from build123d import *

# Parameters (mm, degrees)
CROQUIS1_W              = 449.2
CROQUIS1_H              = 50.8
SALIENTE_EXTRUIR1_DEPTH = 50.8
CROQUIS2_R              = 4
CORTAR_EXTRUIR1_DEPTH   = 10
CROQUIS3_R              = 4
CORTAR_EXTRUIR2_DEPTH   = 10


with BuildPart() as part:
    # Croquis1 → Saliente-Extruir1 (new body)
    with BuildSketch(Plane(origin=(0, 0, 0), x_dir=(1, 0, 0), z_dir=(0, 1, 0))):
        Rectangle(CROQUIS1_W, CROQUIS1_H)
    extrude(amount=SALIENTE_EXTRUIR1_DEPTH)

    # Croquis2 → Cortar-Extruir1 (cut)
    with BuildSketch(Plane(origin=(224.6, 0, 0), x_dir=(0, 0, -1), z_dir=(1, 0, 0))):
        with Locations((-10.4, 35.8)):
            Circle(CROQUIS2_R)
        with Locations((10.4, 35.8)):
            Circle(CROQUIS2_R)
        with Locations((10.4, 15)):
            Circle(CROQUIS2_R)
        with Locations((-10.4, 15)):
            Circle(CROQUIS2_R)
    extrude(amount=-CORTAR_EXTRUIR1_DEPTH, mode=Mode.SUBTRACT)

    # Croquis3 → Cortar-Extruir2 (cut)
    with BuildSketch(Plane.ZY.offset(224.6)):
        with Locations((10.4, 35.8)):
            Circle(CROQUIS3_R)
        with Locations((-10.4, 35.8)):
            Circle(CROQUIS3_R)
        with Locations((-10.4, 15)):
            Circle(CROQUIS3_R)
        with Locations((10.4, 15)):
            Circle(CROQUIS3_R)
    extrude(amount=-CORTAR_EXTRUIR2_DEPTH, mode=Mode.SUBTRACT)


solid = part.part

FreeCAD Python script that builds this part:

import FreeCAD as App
import Part
import Sketcher

V = App.Vector

doc = App.newDocument("Part")
body = doc.addObject("PartDesign::Body", "Body")

# Sketch on XZ plane
sketch1 = doc.addObject("Sketcher::SketchObject", "Sketch")
body.addObject(sketch1)
sketch1.AttachmentSupport = (doc.XZ_Plane, [""])
sketch1.MapMode = "FlatFace"
sketch1.addGeometry(Part.LineSegment(V(-224.6, -25.4, 0), V(-224.6, 25.4, 0)), False)
sketch1.addGeometry(Part.LineSegment(V(-224.6, 25.4, 0), V(224.6, 25.4, 0)), False)
sketch1.addGeometry(Part.LineSegment(V(224.6, 25.4, 0), V(224.6, -25.4, 0)), False)
sketch1.addGeometry(Part.LineSegment(V(224.6, -25.4, 0), V(-224.6, -25.4, 0)), False)
sketch1.addConstraint(Sketcher.Constraint("Coincident", 0, 2, 1, 1))
sketch1.addConstraint(Sketcher.Constraint("Coincident", 1, 2, 2, 1))
sketch1.addConstraint(Sketcher.Constraint("Coincident", 2, 2, 3, 1))
sketch1.addConstraint(Sketcher.Constraint("Coincident", 3, 2, 0, 1))
sketch1.addConstraint(Sketcher.Constraint("Vertical", 0))
sketch1.addConstraint(Sketcher.Constraint("Horizontal", 1))
sketch1.addConstraint(Sketcher.Constraint("Vertical", 2))
sketch1.addConstraint(Sketcher.Constraint("Horizontal", 3))
sketch1.addConstraint(Sketcher.Constraint("Symmetric", 0, 2, 2, 2, -1, 1))
sketch1.addConstraint(Sketcher.Constraint("DistanceX", 1, 1, 1, 2, 449.2))
sketch1.addConstraint(Sketcher.Constraint("DistanceY", 0, 1, 0, 2, 50.8))
pad1 = doc.addObject("PartDesign::Pad", "Pad")
body.addObject(pad1)
pad1.Profile = sketch1
pad1.Length = 50.8
pad1.Reversed = True

# Sketch on YZ plane
sketch2 = doc.addObject("Sketcher::SketchObject", "Sketch001")
body.addObject(sketch2)
sketch2.AttachmentSupport = (doc.YZ_Plane, [""])
sketch2.MapMode = "FlatFace"
sketch2.AttachmentOffset = App.Placement(V(0, 0, 224.6), App.Rotation())
sketch2.addGeometry(Part.Circle(V(35.8, 10.4, 0), V(0, 0, 1), 4), False)
sketch2.addGeometry(Part.Circle(V(35.8, -10.4, 0), V(0, 0, 1), 4), False)
sketch2.addGeometry(Part.Circle(V(15, -10.4, 0), V(0, 0, 1), 4), False)
sketch2.addGeometry(Part.Circle(V(15, 10.4, 0), V(0, 0, 1), 4), False)
sketch2.addConstraint(Sketcher.Constraint("Equal", 0, 1))
sketch2.addConstraint(Sketcher.Constraint("Equal", 1, 2))
sketch2.addConstraint(Sketcher.Constraint("Equal", 2, 3))
sketch2.addConstraint(Sketcher.Constraint("Symmetric", 0, 3, 1, 3, -1))
sketch2.addConstraint(Sketcher.Constraint("Symmetric", 2, 3, 3, 3, -1))
sketch2.addConstraint(Sketcher.Constraint("Horizontal", 1, 3, 2, 3))
sketch2.addConstraint(Sketcher.Constraint("Diameter", 0, 8.0))
sketch2.addConstraint(Sketcher.Constraint("DistanceX", -1, 1, 2, 3, 15.0))
sketch2.addConstraint(Sketcher.Constraint("DistanceX", -1, 1, 0, 3, 35.8))
sketch2.addConstraint(Sketcher.Constraint("DistanceY", -1, 1, 0, 3, 10.4))
pocket1 = doc.addObject("PartDesign::Pocket", "Pocket")
body.addObject(pocket1)
pocket1.Profile = sketch2
pocket1.Length = 10

# Sketch on YZ plane
sketch3 = doc.addObject("Sketcher::SketchObject", "Sketch002")
body.addObject(sketch3)
sketch3.AttachmentSupport = (doc.YZ_Plane, [""])
sketch3.MapMode = "FlatFace"
sketch3.AttachmentOffset = App.Placement(V(0, 0, -224.6), App.Rotation())
sketch3.addGeometry(Part.Circle(V(35.8, 10.4, 0), V(0, 0, 1), 4), False)
sketch3.addGeometry(Part.Circle(V(35.8, -10.4, 0), V(0, 0, 1), 4), False)
sketch3.addGeometry(Part.Circle(V(15, -10.4, 0), V(0, 0, 1), 4), False)
sketch3.addGeometry(Part.Circle(V(15, 10.4, 0), V(0, 0, 1), 4), False)
sketch3.addConstraint(Sketcher.Constraint("Equal", 0, 1))
sketch3.addConstraint(Sketcher.Constraint("Equal", 1, 2))
sketch3.addConstraint(Sketcher.Constraint("Equal", 2, 3))
sketch3.addConstraint(Sketcher.Constraint("Symmetric", 0, 3, 1, 3, -1))
sketch3.addConstraint(Sketcher.Constraint("Symmetric", 2, 3, 3, 3, -1))
sketch3.addConstraint(Sketcher.Constraint("Horizontal", 1, 3, 2, 3))
sketch3.addConstraint(Sketcher.Constraint("Diameter", 0, 8.0))
sketch3.addConstraint(Sketcher.Constraint("DistanceX", -1, 1, 2, 3, 15.0))
sketch3.addConstraint(Sketcher.Constraint("DistanceX", -1, 1, 0, 3, 35.8))
sketch3.addConstraint(Sketcher.Constraint("DistanceY", -1, 1, 0, 3, 10.4))
pocket2 = doc.addObject("PartDesign::Pocket", "Pocket001")
body.addObject(pocket2)
pocket2.Profile = sketch3
pocket2.Length = 10
pocket2.Reversed = True

doc.recompute()
